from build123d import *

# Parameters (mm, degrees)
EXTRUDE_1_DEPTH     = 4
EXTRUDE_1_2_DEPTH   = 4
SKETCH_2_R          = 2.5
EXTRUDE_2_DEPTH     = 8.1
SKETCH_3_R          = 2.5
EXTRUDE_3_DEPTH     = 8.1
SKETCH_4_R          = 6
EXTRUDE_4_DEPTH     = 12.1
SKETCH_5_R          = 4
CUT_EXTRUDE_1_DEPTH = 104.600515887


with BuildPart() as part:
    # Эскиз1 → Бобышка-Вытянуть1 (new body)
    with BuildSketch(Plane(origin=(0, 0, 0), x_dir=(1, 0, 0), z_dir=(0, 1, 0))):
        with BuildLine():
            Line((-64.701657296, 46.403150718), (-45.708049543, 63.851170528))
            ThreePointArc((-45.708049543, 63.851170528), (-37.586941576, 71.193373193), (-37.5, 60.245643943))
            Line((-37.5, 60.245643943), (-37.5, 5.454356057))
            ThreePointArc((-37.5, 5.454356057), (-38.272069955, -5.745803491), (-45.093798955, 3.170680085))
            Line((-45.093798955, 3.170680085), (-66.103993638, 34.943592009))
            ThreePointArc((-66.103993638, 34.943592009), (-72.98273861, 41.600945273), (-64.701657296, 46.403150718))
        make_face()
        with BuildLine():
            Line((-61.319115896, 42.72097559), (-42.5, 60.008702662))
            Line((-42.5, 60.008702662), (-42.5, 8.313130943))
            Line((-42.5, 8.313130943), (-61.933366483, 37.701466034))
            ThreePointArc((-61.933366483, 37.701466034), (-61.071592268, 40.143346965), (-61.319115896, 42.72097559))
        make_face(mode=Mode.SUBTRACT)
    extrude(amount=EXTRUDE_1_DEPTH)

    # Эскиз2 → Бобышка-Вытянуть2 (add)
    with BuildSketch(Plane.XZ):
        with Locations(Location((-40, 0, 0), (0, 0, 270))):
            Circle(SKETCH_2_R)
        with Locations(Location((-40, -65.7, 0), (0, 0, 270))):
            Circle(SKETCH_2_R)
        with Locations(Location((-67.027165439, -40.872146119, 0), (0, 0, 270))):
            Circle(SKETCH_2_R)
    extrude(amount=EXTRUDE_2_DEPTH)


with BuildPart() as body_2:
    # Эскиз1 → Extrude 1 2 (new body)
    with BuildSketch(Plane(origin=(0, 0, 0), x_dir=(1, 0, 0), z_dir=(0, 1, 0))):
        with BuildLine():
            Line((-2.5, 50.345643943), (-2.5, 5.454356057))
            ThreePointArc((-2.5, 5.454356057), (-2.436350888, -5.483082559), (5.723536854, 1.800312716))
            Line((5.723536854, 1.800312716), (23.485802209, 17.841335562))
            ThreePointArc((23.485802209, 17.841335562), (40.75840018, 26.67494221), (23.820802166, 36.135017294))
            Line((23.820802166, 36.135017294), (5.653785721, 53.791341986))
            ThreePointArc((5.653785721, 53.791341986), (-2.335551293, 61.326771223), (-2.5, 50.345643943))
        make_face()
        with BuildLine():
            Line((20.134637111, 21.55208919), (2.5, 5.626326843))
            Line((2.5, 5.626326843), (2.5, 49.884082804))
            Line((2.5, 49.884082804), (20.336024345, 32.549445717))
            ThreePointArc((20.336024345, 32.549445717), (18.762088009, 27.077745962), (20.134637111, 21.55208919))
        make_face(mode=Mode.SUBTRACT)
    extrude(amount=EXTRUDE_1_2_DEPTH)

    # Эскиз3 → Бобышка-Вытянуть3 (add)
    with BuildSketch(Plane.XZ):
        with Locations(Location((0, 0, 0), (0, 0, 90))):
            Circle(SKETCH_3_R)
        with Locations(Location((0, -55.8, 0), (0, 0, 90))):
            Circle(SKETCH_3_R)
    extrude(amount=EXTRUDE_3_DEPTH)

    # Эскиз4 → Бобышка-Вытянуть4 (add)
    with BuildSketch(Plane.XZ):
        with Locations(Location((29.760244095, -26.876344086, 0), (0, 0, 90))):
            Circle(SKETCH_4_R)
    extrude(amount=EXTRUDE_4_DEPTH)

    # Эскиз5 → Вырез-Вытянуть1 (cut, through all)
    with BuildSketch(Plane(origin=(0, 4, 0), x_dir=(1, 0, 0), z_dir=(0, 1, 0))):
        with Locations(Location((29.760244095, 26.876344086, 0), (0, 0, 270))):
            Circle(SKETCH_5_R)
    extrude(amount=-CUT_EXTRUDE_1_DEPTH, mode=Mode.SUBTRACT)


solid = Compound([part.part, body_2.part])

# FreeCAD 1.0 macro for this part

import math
import FreeCAD as App
import Part
import Sketcher

V = App.Vector
Q = App.Units.Quantity

doc = App.newDocument("Part")
body = doc.addObject("PartDesign::Body", "Body")

# Sketch on XZ plane
sketch1 = body.newObject("Sketcher::SketchObject", "Sketch")
sketch1.AttachmentSupport = (doc.getObject("XZ_Plane"), [""])
sketch1.MapMode = "FlatFace"
sketch1.addGeometry(Part.LineSegment(V(-46, -64, 0), V(-65, -46, 0)), False)
sketch1.addGeometry(Part.ArcOfCircle(Part.Circle(V(-67, -41, 0), V(0, 0, 1), 6), math.radians(81), math.radians(293)), False)
sketch1.addGeometry(Part.LineSegment(V(-66, -35, 0), V(-45, -3, 0)), False)
sketch1.addGeometry(Part.ArcOfCircle(Part.Circle(V(-40, 0, 0), V(0, 0, 1), 6), math.radians(-65), math.radians(212)), False)
sketch1.addGeometry(Part.LineSegment(V(-38, -5, 0), V(-38, -60, 0)), False)
sketch1.addGeometry(Part.ArcOfCircle(Part.Circle(V(-40, -66, 0), V(0, 0, 1), 6), math.radians(162), math.radians(425)), False)
sketch1.addGeometry(Part.LineSegment(V(-61, -43, 0), V(-42, -60, 0)), False)
sketch1.addGeometry(Part.LineSegment(V(-42, -60, 0), V(-42, -8, 0)), False)
sketch1.addGeometry(Part.LineSegment(V(-42, -8, 0), V(-62, -38, 0)), False)
sketch1.addGeometry(Part.ArcOfCircle(Part.Circle(V(-67, -41, 0), V(0, 0, 1), 6), math.radians(-18), math.radians(32)), False)
sketch1.addConstraint(Sketcher.Constraint("Coincident", 0, 2, 1, 2))
sketch1.addConstraint(Sketcher.Constraint("Coincident", 1, 1, 2, 1))
sketch1.addConstraint(Sketcher.Constraint("Coincident", 2, 2, 3, 2))
sketch1.addConstraint(Sketcher.Constraint("Coincident", 3, 1, 4, 1))
sketch1.addConstraint(Sketcher.Constraint("Coincident", 4, 2, 5, 2))
sketch1.addConstraint(Sketcher.Constraint("Coincident", 5, 1, 0, 1))
sketch1.addConstraint(Sketcher.Constraint("Coincident", 6, 2, 7, 1))
sketch1.addConstraint(Sketcher.Constraint("Coincident", 7, 2, 8, 1))
sketch1.addConstraint(Sketcher.Constraint("Coincident", 8, 2, 9, 2))
sketch1.addConstraint(Sketcher.Constraint("Coincident", 9, 1, 6, 1))
sketch1.addConstraint(Sketcher.Constraint("Vertical", 4))
sketch1.addConstraint(Sketcher.Constraint("Vertical", 7))
sketch1.addConstraint(Sketcher.Constraint("Coincident", 9, 3, 1, 3))
sketch1.addConstraint(Sketcher.Constraint("Equal", 1, 3))
sketch1.addConstraint(Sketcher.Constraint("Equal", 3, 5))
sketch1.addConstraint(Sketcher.Constraint("Equal", 5, 9))
sketch1.addConstraint(Sketcher.Constraint("PointOnObject", 3, 3, -1))
sketch1.addConstraint(Sketcher.Constraint("Parallel", 0, 6))
sketch1.addConstraint(Sketcher.Constraint("Parallel", 2, 8))
sketch1.addConstraint(Sketcher.Constraint("Vertical", 3, 3, 5, 3))
sketch1.addConstraint(Sketcher.Constraint("Radius", 1, Q("6 mm")))
sketch1.addConstraint(Sketcher.Constraint("DistanceX", 3, 3, -1, 1, Q("40 mm")))
sketch1.addConstraint(Sketcher.Constraint("DistanceX", 6, 2, 4, 2, Q("5 mm")))
sketch1.addConstraint(Sketcher.Constraint("DistanceY", 5, 3, -1, 1, Q("65.7 mm")))
sketch1.addConstraint(Sketcher.Constraint("DistanceX", 3, 1, -1, 1, Q("37.5 mm")))
sketch1.addConstraint(Sketcher.Constraint("DistanceY", 7, 1, 7, 2, Q("51.695572 mm")))
sketch1.addConstraint(Sketcher.Constraint("DistanceX", 2, 2, -1, 1, Q("45.093799 mm")))
sketch1.addConstraint(Sketcher.Constraint("DistanceX", 1, 3, 8, 2, Q("5.093799 mm")))
sketch1.addConstraint(Sketcher.Constraint("DistanceY", 0, 2, -1, 1, Q("46.403151 mm")))
sketch1.addConstraint(Sketcher.Constraint("DistanceX", 5, 1, -1, 1, Q("45.70805 mm")))
sketch1.addConstraint(Sketcher.Constraint("DistanceY", 7, 2, -1, 1, Q("8.313131 mm")))
sketch1.addConstraint(Sketcher.Constraint("DistanceX", 1, 3, 0, 2, Q("2.325508 mm")))
sketch1.addConstraint(Sketcher.Constraint("DistanceX", 1, 3, 1, 1, Q("0.923172 mm")))
pad1 = body.newObject("PartDesign::Pad", "Pad")
pad1.Profile = sketch1
pad1.Length = 4
pad1.Reversed = True

# Sketch on XZ plane
sketch2 = body.newObject("Sketcher::SketchObject", "Sketch001")
sketch2.AttachmentSupport = (doc.getObject("XZ_Plane"), [""])
sketch2.MapMode = "FlatFace"
sketch2.addGeometry(Part.Circle(V(-40, 0, 0), V(0, 0, 1), 2.5), False)
sketch2.addGeometry(Part.Circle(V(-40, -65.7, 0), V(0, 0, 1), 2.5), False)
sketch2.addGeometry(Part.Circle(V(-67, -40.9, 0), V(0, 0, 1), 2.5), False)
sketch2.addConstraint(Sketcher.Constraint("Equal", 0, 1))
sketch2.addConstraint(Sketcher.Constraint("Equal", 1, 2))
sketch2.addConstraint(Sketcher.Constraint("PointOnObject", 0, 3, -1))
sketch2.addConstraint(Sketcher.Constraint("Vertical", 0, 3, 1, 3))
sketch2.addConstraint(Sketcher.Constraint("Diameter", 0, Q("5 mm")))
sketch2.addConstraint(Sketcher.Constraint("DistanceX", 0, 3, -1, 1, Q("40 mm")))
sketch2.addConstraint(Sketcher.Constraint("DistanceY", 1, 3, -1, 1, Q("65.7 mm")))
sketch2.addConstraint(Sketcher.Constraint("DistanceX", 2, 3, -1, 1, Q("67.027165 mm")))
sketch2.addConstraint(Sketcher.Constraint("DistanceY", 2, 3, -1, 1, Q("40.872146 mm")))
pad2 = body.newObject("PartDesign::Pad", "Pad001")
pad2.Profile = sketch2
pad2.Length = 8.1
body2 = doc.addObject("PartDesign::Body", "Body001")

# Sketch on XZ plane
sketch3 = body2.newObject("Sketcher::SketchObject", "Sketch002")
sketch3.AttachmentSupport = (doc.getObject("XZ_Plane001"), [""])
sketch3.MapMode = "FlatFace"
sketch3.addGeometry(Part.LineSegment(V(-2, -50, 0), V(-2, -5, 0)), False)
sketch3.addGeometry(Part.ArcOfCircle(Part.Circle(V(0, 0, 0), V(0, 0, 1), 6), math.radians(-17), math.radians(245)), False)
sketch3.addGeometry(Part.LineSegment(V(6, -2, 0), V(23, -18, 0)), False)
sketch3.addGeometry(Part.ArcOfCircle(Part.Circle(V(30, -27, 0), V(0, 0, 1), 11), math.radians(-123), math.radians(125)), False)
sketch3.addGeometry(Part.LineSegment(V(24, -36, 0), V(6, -54, 0)), False)
sketch3.addGeometry(Part.ArcOfCircle(Part.Circle(V(0, -56, 0), V(0, 0, 1), 6), math.radians(115), math.radians(380)), False)
sketch3.addGeometry(Part.ArcOfCircle(Part.Circle(V(30, -27, 0), V(0, 0, 1), 11), math.radians(151), math.radians(211)), False)
sketch3.addGeometry(Part.LineSegment(V(20, -22, 0), V(2, -6, 0)), False)
sketch3.addGeometry(Part.LineSegment(V(2, -6, 0), V(2, -50, 0)), False)
sketch3.addGeometry(Part.LineSegment(V(2, -50, 0), V(20, -33, 0)), False)
sketch3.addConstraint(Sketcher.Constraint("Coincident", 0, 2, 1, 2))
sketch3.addConstraint(Sketcher.Constraint("Coincident", 1, 1, 2, 1))
sketch3.addConstraint(Sketcher.Constraint("Coincident", 2, 2, 3, 2))
sketch3.addConstraint(Sketcher.Constraint("Coincident", 3, 1, 4, 1))
sketch3.addConstraint(Sketcher.Constraint("Coincident", 4, 2, 5, 2))
sketch3.addConstraint(Sketcher.Constraint("Coincident", 5, 1, 0, 1))
sketch3.addConstraint(Sketcher.Constraint("Coincident", 6, 1, 7, 1))
sketch3.addConstraint(Sketcher.Constraint("Coincident", 7, 2, 8, 1))
sketch3.addConstraint(Sketcher.Constraint("Coincident", 8, 2, 9, 1))
sketch3.addConstraint(Sketcher.Constraint("Coincident", 9, 2, 6, 2))
sketch3.addConstraint(Sketcher.Constraint("Vertical", 0))
sketch3.addConstraint(Sketcher.Constraint("Vertical", 8))
sketch3.addConstraint(Sketcher.Constraint("Coincident", 1, 3, -1, 1))
sketch3.addConstraint(Sketcher.Constraint("Coincident", 6, 3, 3, 3))
sketch3.addConstraint(Sketcher.Constraint("Equal", 1, 5))
sketch3.addConstraint(Sketcher.Constraint("Equal", 3, 6))
sketch3.addConstraint(Sketcher.Constraint("PointOnObject", 5, 3, -2))
sketch3.addConstraint(Sketcher.Constraint("Parallel", 2, 7))
sketch3.addConstraint(Sketcher.Constraint("Parallel", 4, 9))
sketch3.addConstraint(Sketcher.Constraint("Radius", 1, Q("6 mm")))
sketch3.addConstraint(Sketcher.Constraint("Radius", 3, Q("11 mm")))
sketch3.addConstraint(Sketcher.Constraint("DistanceX", 0, 2, 7, 2, Q("5 mm")))
sketch3.addConstraint(Sketcher.Constraint("DistanceY", 5, 3, -1, 1, Q("55.8 mm")))
sketch3.addConstraint(Sketcher.Constraint("DistanceX", 0, 2, -1, 1, Q("2.5 mm")))
sketch3.addConstraint(Sketcher.Constraint("DistanceX", 2, 2, 3, 1, Q("0.335 mm")))
sketch3.addConstraint(Sketcher.Constraint("Distance", 2, Q("23.933501 mm")))
sketch3.addConstraint(Sketcher.Constraint("Distance", 4, Q("25.333501 mm")))
sketch3.addConstraint(Sketcher.Constraint("DistanceY", 4, 2, 5, 1, Q("3.445698 mm")))
sketch3.addConstraint(Sketcher.Constraint("DistanceY", 5, 1, 3, 3, Q("23.4693 mm")))
sketch3.addConstraint(Sketcher.Constraint("DistanceX", 1, 1, 6, 1, Q("14.4111 mm")))
sketch3.addConstraint(Sketcher.Constraint("DistanceY", 9, 2, 3, 3, Q("5.673102 mm")))
sketch3.addConstraint(Sketcher.Constraint("Distance", 7, Q("23.761531 mm")))
pad3 = body2.newObject("PartDesign::Pad", "Pad002")
pad3.Profile = sketch3
pad3.Length = 4
pad3.Reversed = True

# Sketch on XZ plane
sketch4 = body2.newObject("Sketcher::SketchObject", "Sketch003")
sketch4.AttachmentSupport = (doc.getObject("XZ_Plane001"), [""])
sketch4.MapMode = "FlatFace"
sketch4.addGeometry(Part.Circle(V(0, 0, 0), V(0, 0, 1), 2.5), False)
sketch4.addGeometry(Part.Circle(V(0, -55.8, 0), V(0, 0, 1), 2.5), False)
sketch4.addConstraint(Sketcher.Constraint("Coincident", 0, 3, -1, 1))
sketch4.addConstraint(Sketcher.Constraint("Equal", 0, 1))
sketch4.addConstraint(Sketcher.Constraint("PointOnObject", 1, 3, -2))
sketch4.addConstraint(Sketcher.Constraint("Diameter", 0, Q("5 mm")))
sketch4.addConstraint(Sketcher.Constraint("DistanceY", 1, 3, -1, 1, Q("55.8 mm")))
pad4 = body2.newObject("PartDesign::Pad", "Pad003")
pad4.Profile = sketch4
pad4.Length = 8.1

# Sketch on XZ plane
sketch5 = body2.newObject("Sketcher::SketchObject", "Sketch004")
sketch5.AttachmentSupport = (doc.getObject("XZ_Plane001"), [""])
sketch5.MapMode = "FlatFace"
sketch5.addGeometry(Part.Circle(V(30, -27, 0), V(0, 0, 1), 6), False)
sketch5.addConstraint(Sketcher.Constraint("Diameter", 0, Q("12 mm")))
sketch5.addConstraint(Sketcher.Constraint("DistanceX", -1, 1, 0, 3, Q("29.760244 mm")))
sketch5.addConstraint(Sketcher.Constraint("DistanceY", 0, 3, -1, 1, Q("26.876344 mm")))
pad5 = body2.newObject("PartDesign::Pad", "Pad004")
pad5.Profile = sketch5
pad5.Length = 12.1

# Sketch on XZ plane
sketch6 = body2.newObject("Sketcher::SketchObject", "Sketch005")
sketch6.AttachmentSupport = (doc.getObject("XZ_Plane001"), [""])
sketch6.MapMode = "FlatFace"
sketch6.AttachmentOffset = App.Placement(V(0, 0, -4), App.Rotation())
sketch6.addGeometry(Part.Circle(V(29.8, -26.9, 0), V(0, 0, 1), 4), False)
sketch6.addConstraint(Sketcher.Constraint("Diameter", 0, Q("8 mm")))
sketch6.addConstraint(Sketcher.Constraint("DistanceX", -1, 1, 0, 3, Q("29.760244 mm")))
sketch6.addConstraint(Sketcher.Constraint("DistanceY", 0, 3, -1, 1, Q("26.876344 mm")))
pocket1 = body2.newObject("PartDesign::Pocket", "Pocket")
pocket1.Profile = sketch6
pocket1.Type = "ThroughAll"
pocket1.Reversed = True

doc.recompute()
